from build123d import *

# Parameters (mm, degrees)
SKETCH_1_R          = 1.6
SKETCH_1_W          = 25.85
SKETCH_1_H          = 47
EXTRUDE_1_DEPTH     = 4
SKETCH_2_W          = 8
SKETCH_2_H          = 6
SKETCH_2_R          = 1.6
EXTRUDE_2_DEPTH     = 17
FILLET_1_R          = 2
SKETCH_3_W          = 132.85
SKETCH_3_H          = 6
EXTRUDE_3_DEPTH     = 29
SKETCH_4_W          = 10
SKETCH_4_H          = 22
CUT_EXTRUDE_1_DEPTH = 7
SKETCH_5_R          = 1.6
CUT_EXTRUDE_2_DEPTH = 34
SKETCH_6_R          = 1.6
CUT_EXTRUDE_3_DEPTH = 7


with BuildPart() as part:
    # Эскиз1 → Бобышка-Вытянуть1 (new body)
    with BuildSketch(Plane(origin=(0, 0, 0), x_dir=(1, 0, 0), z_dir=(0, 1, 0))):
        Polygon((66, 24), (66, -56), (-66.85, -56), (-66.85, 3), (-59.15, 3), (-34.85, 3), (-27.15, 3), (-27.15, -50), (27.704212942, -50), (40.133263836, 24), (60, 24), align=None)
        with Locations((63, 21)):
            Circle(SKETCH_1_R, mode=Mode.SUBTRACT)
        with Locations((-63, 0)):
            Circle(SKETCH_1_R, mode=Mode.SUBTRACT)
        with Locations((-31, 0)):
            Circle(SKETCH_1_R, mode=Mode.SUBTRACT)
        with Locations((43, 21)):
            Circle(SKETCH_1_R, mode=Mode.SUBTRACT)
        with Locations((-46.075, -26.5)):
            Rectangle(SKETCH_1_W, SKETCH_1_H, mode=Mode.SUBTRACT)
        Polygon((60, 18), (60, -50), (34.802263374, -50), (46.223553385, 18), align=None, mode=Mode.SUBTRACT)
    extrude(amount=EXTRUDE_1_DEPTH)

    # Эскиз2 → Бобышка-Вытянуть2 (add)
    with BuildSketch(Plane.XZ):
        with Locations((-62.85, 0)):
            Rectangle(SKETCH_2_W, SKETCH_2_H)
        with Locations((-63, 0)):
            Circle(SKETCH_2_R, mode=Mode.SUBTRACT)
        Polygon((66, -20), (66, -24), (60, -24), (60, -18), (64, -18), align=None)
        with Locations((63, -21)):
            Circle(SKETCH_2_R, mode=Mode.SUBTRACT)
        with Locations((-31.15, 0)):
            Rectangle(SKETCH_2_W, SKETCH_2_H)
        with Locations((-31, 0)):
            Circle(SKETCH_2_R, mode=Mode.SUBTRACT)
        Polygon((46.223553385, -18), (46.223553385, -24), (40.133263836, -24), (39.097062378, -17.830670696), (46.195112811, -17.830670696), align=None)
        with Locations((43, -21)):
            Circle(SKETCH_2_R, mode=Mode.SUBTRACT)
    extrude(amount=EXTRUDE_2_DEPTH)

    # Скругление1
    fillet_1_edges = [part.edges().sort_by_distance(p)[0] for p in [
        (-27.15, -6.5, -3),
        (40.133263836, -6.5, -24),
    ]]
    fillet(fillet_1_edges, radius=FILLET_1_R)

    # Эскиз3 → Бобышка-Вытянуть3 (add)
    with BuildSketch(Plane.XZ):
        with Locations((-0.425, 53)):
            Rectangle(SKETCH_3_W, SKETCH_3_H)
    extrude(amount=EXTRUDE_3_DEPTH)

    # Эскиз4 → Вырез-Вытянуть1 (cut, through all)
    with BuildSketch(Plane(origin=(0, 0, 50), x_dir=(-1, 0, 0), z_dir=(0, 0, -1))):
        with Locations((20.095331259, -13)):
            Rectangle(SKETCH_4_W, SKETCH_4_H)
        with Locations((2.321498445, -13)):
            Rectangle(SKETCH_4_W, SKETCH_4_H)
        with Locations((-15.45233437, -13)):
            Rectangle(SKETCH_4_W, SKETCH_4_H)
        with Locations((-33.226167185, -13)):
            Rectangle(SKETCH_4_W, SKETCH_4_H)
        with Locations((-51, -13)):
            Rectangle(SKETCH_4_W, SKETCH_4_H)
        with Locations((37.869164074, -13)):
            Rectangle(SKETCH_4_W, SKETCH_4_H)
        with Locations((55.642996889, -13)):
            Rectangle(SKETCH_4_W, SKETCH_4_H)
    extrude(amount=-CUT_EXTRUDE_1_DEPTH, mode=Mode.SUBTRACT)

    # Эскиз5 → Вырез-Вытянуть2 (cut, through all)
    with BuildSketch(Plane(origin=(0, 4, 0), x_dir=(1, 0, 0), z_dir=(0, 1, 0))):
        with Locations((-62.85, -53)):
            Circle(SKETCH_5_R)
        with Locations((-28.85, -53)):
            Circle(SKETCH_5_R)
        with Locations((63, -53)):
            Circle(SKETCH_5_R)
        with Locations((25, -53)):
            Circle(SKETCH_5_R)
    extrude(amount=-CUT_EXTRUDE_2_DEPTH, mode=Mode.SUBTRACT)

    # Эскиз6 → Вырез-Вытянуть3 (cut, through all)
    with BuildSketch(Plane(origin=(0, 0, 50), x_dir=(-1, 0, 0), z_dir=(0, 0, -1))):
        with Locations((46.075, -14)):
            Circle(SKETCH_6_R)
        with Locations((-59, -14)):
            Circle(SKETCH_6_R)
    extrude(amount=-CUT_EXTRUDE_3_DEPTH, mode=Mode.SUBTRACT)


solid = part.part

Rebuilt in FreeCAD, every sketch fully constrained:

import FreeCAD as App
import Part
import Sketcher

V = App.Vector


def edges_at(feature, points):
    """Names of the edges that pass closest to the given points."""
    edges = feature.Shape.Edges
    near = lambda p: min(range(len(edges)), key=lambda i: edges[i].distToShape(Part.Vertex(*p))[0])
    return sorted({f"Edge{near(p) + 1}" for p in points})

doc = App.newDocument("Part")
body = doc.addObject("PartDesign::Body", "Body")

# Sketch on XZ plane
sketch1 = body.newObject("Sketcher::SketchObject", "Sketch")
sketch1.AttachmentSupport = (doc.getObject("XZ_Plane"), [""])
sketch1.MapMode = "FlatFace"
sketch1.addGeometry(Part.LineSegment(V(66, 56, 0), V(66, -24, 0)), False)
sketch1.addGeometry(Part.LineSegment(V(66, -24, 0), V(40.1, -24, 0)), False)
sketch1.addGeometry(Part.LineSegment(V(40.1, -24, 0), V(27.7, 50, 0)), False)
sketch1.addGeometry(Part.LineSegment(V(27.7, 50, 0), V(-27.1, 50, 0)), False)
sketch1.addGeometry(Part.LineSegment(V(-27.1, 50, 0), V(-27.1, -3, 0)), False)
sketch1.addGeometry(Part.LineSegment(V(-27.1, -3, 0), V(-66.8, -3, 0)), False)
sketch1.addGeometry(Part.LineSegment(V(-66.8, -3, 0), V(-66.8, 56, 0)), False)
sketch1.addGeometry(Part.LineSegment(V(-66.8, 56, 0), V(66, 56, 0)), False)
sketch1.addGeometry(Part.LineSegment(V(60, -18, 0), V(60, 50, 0)), False)
sketch1.addGeometry(Part.LineSegment(V(60, 50, 0), V(34.8, 50, 0)), False)
sketch1.addGeometry(Part.LineSegment(V(34.8, 50, 0), V(46.2, -18, 0)), False)
sketch1.addGeometry(Part.LineSegment(V(46.2, -18, 0), V(60, -18, 0)), False)
sketch1.addGeometry(Part.LineSegment(V(-59, 50, 0), V(-59, 3, 0)), False)
sketch1.addGeometry(Part.LineSegment(V(-59, 3, 0), V(-33.1, 3, 0)), False)
sketch1.addGeometry(Part.LineSegment(V(-33.1, 3, 0), V(-33.1, 50, 0)), False)
sketch1.addGeometry(Part.LineSegment(V(-33.1, 50, 0), V(-59, 50, 0)), False)
sketch1.addGeometry(Part.Circle(V(63, -21, 0), V(0, 0, 1), 1.6), False)
sketch1.addGeometry(Part.Circle(V(43, -21, 0), V(0, 0, 1), 1.6), False)
sketch1.addGeometry(Part.Circle(V(-31, 0, 0), V(0, 0, 1), 1.6), False)
sketch1.addGeometry(Part.Circle(V(-63, 0, 0), V(0, 0, 1), 1.6), False)
sketch1.addConstraint(Sketcher.Constraint("Coincident", 0, 2, 1, 1))
sketch1.addConstraint(Sketcher.Constraint("Coincident", 1, 2, 2, 1))
sketch1.addConstraint(Sketcher.Constraint("Coincident", 2, 2, 3, 1))
sketch1.addConstraint(Sketcher.Constraint("Coincident", 3, 2, 4, 1))
sketch1.addConstraint(Sketcher.Constraint("Coincident", 4, 2, 5, 1))
sketch1.addConstraint(Sketcher.Constraint("Coincident", 5, 2, 6, 1))
sketch1.addConstraint(Sketcher.Constraint("Coincident", 6, 2, 7, 1))
sketch1.addConstraint(Sketcher.Constraint("Coincident", 7, 2, 0, 1))
sketch1.addConstraint(Sketcher.Constraint("Coincident", 8, 2, 9, 1))
sketch1.addConstraint(Sketcher.Constraint("Coincident", 9, 2, 10, 1))
sketch1.addConstraint(Sketcher.Constraint("Coincident", 10, 2, 11, 1))
sketch1.addConstraint(Sketcher.Constraint("Coincident", 11, 2, 8, 1))
sketch1.addConstraint(Sketcher.Constraint("Coincident", 12, 2, 13, 1))
sketch1.addConstraint(Sketcher.Constraint("Coincident", 13, 2, 14, 1))
sketch1.addConstraint(Sketcher.Constraint("Coincident", 14, 2, 15, 1))
sketch1.addConstraint(Sketcher.Constraint("Coincident", 15, 2, 12, 1))
sketch1.addConstraint(Sketcher.Constraint("Vertical", 0))
sketch1.addConstraint(Sketcher.Constraint("Horizontal", 1))
sketch1.addConstraint(Sketcher.Constraint("Horizontal", 3))
sketch1.addConstraint(Sketcher.Constraint("Vertical", 4))
sketch1.addConstraint(Sketcher.Constraint("Horizontal", 5))
sketch1.addConstraint(Sketcher.Constraint("Vertical", 6))
sketch1.addConstraint(Sketcher.Constraint("Horizontal", 7))
sketch1.addConstraint(Sketcher.Constraint("Vertical", 8))
sketch1.addConstraint(Sketcher.Constraint("Horizontal", 9))
sketch1.addConstraint(Sketcher.Constraint("Horizontal", 11))
sketch1.addConstraint(Sketcher.Constraint("Vertical", 12))
sketch1.addConstraint(Sketcher.Constraint("Horizontal", 13))
sketch1.addConstraint(Sketcher.Constraint("Vertical", 14))
sketch1.addConstraint(Sketcher.Constraint("Horizontal", 15))
sketch1.addConstraint(Sketcher.Constraint("Equal", 16, 17))
sketch1.addConstraint(Sketcher.Constraint("Equal", 17, 18))
sketch1.addConstraint(Sketcher.Constraint("Equal", 18, 19))
sketch1.addConstraint(Sketcher.Constraint("PointOnObject", 18, 3, -1))
sketch1.addConstraint(Sketcher.Constraint("PointOnObject", 19, 3, -1))
sketch1.addConstraint(Sketcher.Constraint("Parallel", 2, 10))
sketch1.addConstraint(Sketcher.Constraint("Horizontal", 16, 3, 17, 3))
sketch1.addConstraint(Sketcher.Constraint("Horizontal", 3, 2, 8, 2))
sketch1.addConstraint(Sketcher.Constraint("Horizontal", 9, 2, 14, 2))
sketch1.addConstraint(Sketcher.Constraint("Diameter", 16, 3.2))
sketch1.addConstraint(Sketcher.Constraint("DistanceY", 0, 2, 0, 1, 80.0))
sketch1.addConstraint(Sketcher.Constraint("DistanceY", 4, 2, 4, 1, 53.0))
sketch1.addConstraint(Sketcher.Constraint("DistanceY", 6, 1, 6, 2, 59.0))
sketch1.addConstraint(Sketcher.Constraint("DistanceY", 8, 1, 8, 2, 68.0))
sketch1.addConstraint(Sketcher.Constraint("DistanceY", 12, 2, 12, 1, 47.0))
sketch1.addConstraint(Sketcher.Constraint("DistanceX", 5, 2, 5, 1, 39.7))
sketch1.addConstraint(Sketcher.Constraint("DistanceX", -1, 1, 16, 3, 63.0))
sketch1.addConstraint(Sketcher.Constraint("DistanceY", 16, 3, -1, 1, 21.0))
sketch1.addConstraint(Sketcher.Constraint("DistanceX", -1, 1, 17, 3, 43.0))
sketch1.addConstraint(Sketcher.Constraint("DistanceX", 18, 3, -1, 1, 31.0))
sketch1.addConstraint(Sketcher.Constraint("DistanceX", 19, 3, -1, 1, 63.0))
sketch1.addConstraint(Sketcher.Constraint("DistanceX", -1, 1, 0, 2, 66.0))
sketch1.addConstraint(Sketcher.Constraint("DistanceY", 0, 2, -1, 1, 24.0))
sketch1.addConstraint(Sketcher.Constraint("DistanceX", -1, 1, 8, 2, 60.0))
sketch1.addConstraint(Sketcher.Constraint("DistanceX", 12, 2, -1, 1, 59.0))
sketch1.addConstraint(Sketcher.Constraint("DistanceX", 13, 2, 4, 2, 6.0))
sketch1.addConstraint(Sketcher.Constraint("DistanceX", 7, 1, 7, 2, 132.85))
sketch1.addConstraint(Sketcher.Constraint("Distance", 10, 68.95249))
sketch1.addConstraint(Sketcher.Constraint("DistanceX", 1, 2, 1, 1, 25.866736))
sketch1.addConstraint(Sketcher.Constraint("DistanceX", 9, 2, 9, 1, 25.197737))
pad1 = body.newObject("PartDesign::Pad", "Pad")
pad1.Profile = sketch1
pad1.Length = 4
pad1.Reversed = True

# Sketch on XZ plane
sketch2 = body.newObject("Sketcher::SketchObject", "Sketch001")
sketch2.AttachmentSupport = (doc.getObject("XZ_Plane"), [""])
sketch2.MapMode = "FlatFace"
sketch2.addGeometry(Part.LineSegment(V(-66.85, 3, 0), V(-66.85, -3, 0)), False)
sketch2.addGeometry(Part.LineSegment(V(-66.85, -3, 0), V(-58.85, -3, 0)), False)
sketch2.addGeometry(Part.LineSegment(V(-58.85, -3, 0), V(-58.85, 3, 0)), False)
sketch2.addGeometry(Part.LineSegment(V(-58.85, 3, 0), V(-66.85, 3, 0)), False)
sketch2.addGeometry(Part.Circle(V(-63, 0, 0), V(0, 0, 1), 1.6), False)
sketch2.addGeometry(Part.LineSegment(V(66, -24, 0), V(66, -20, 0)), False)
sketch2.addGeometry(Part.LineSegment(V(66, -20, 0), V(64, -18, 0)), False)
sketch2.addGeometry(Part.LineSegment(V(64, -18, 0), V(60, -18, 0)), False)
sketch2.addGeometry(Part.LineSegment(V(60, -18, 0), V(60, -24, 0)), False)
sketch2.addGeometry(Part.LineSegment(V(60, -24, 0), V(66, -24, 0)), False)
sketch2.addGeometry(Part.Circle(V(63, -21, 0), V(0, 0, 1), 1.6), False)
sketch2.addGeometry(Part.LineSegment(V(-35.15, 3, 0), V(-35.15, -3, 0)), False)
sketch2.addGeometry(Part.LineSegment(V(-35.15, -3, 0), V(-27.15, -3, 0)), False)
sketch2.addGeometry(Part.LineSegment(V(-27.15, -3, 0), V(-27.15, 3, 0)), False)
sketch2.addGeometry(Part.LineSegment(V(-27.15, 3, 0), V(-35.15, 3, 0)), False)
sketch2.addGeometry(Part.Circle(V(-31, 0, 0), V(0, 0, 1), 1.6), False)
sketch2.addGeometry(Part.LineSegment(V(46.22, -24, 0), V(46.22, -18, 0)), False)
sketch2.addGeometry(Part.LineSegment(V(46.22, -18, 0), V(46.2, -17.83, 0)), False)
sketch2.addGeometry(Part.LineSegment(V(46.2, -17.83, 0), V(39.1, -17.83, 0)), False)
sketch2.addGeometry(Part.LineSegment(V(39.1, -17.83, 0), V(40.13, -24, 0)), False)
sketch2.addGeometry(Part.LineSegment(V(40.13, -24, 0), V(46.22, -24, 0)), False)
sketch2.addGeometry(Part.Circle(V(43, -21, 0), V(0, 0, 1), 1.6), False)
sketch2.addConstraint(Sketcher.Constraint("Coincident", 0, 2, 1, 1))
sketch2.addConstraint(Sketcher.Constraint("Coincident", 1, 2, 2, 1))
sketch2.addConstraint(Sketcher.Constraint("Coincident", 2, 2, 3, 1))
sketch2.addConstraint(Sketcher.Constraint("Coincident", 3, 2, 0, 1))
sketch2.addConstraint(Sketcher.Constraint("Coincident", 5, 2, 6, 1))
sketch2.addConstraint(Sketcher.Constraint("Coincident", 6, 2, 7, 1))
sketch2.addConstraint(Sketcher.Constraint("Coincident", 7, 2, 8, 1))
sketch2.addConstraint(Sketcher.Constraint("Coincident", 8, 2, 9, 1))
sketch2.addConstraint(Sketcher.Constraint("Coincident", 9, 2, 5, 1))
sketch2.addConstraint(Sketcher.Constraint("Coincident", 11, 2, 12, 1))
sketch2.addConstraint(Sketcher.Constraint("Coincident", 12, 2, 13, 1))
sketch2.addConstraint(Sketcher.Constraint("Coincident", 13, 2, 14, 1))
sketch2.addConstraint(Sketcher.Constraint("Coincident", 14, 2, 11, 1))
sketch2.addConstraint(Sketcher.Constraint("Coincident", 16, 2, 17, 1))
sketch2.addConstraint(Sketcher.Constraint("Coincident", 17, 2, 18, 1))
sketch2.addConstraint(Sketcher.Constraint("Coincident", 18, 2, 19, 1))
sketch2.addConstraint(Sketcher.Constraint("Coincident", 19, 2, 20, 1))
sketch2.addConstraint(Sketcher.Constraint("Coincident", 20, 2, 16, 1))
sketch2.addConstraint(Sketcher.Constraint("Vertical", 0))
sketch2.addConstraint(Sketcher.Constraint("Horizontal", 1))
sketch2.addConstraint(Sketcher.Constraint("Vertical", 2))
sketch2.addConstraint(Sketcher.Constraint("Horizontal", 3))
sketch2.addConstraint(Sketcher.Constraint("Vertical", 5))
sketch2.addConstraint(Sketcher.Constraint("Horizontal", 7))
sketch2.addConstraint(Sketcher.Constraint("Vertical", 8))
sketch2.addConstraint(Sketcher.Constraint("Horizontal", 9))
sketch2.addConstraint(Sketcher.Constraint("Vertical", 11))
sketch2.addConstraint(Sketcher.Constraint("Horizontal", 12))
sketch2.addConstraint(Sketcher.Constraint("Vertical", 13))
sketch2.addConstraint(Sketcher.Constraint("Horizontal", 14))
sketch2.addConstraint(Sketcher.Constraint("Vertical", 16))
sketch2.addConstraint(Sketcher.Constraint("Horizontal", 18))
sketch2.addConstraint(Sketcher.Constraint("Horizontal", 20))
sketch2.addConstraint(Sketcher.Constraint("Equal", 4, 10))
sketch2.addConstraint(Sketcher.Constraint("Equal", 10, 15))
sketch2.addConstraint(Sketcher.Constraint("Equal", 15, 21))
sketch2.addConstraint(Sketcher.Constraint("PointOnObject", 4, 3, -1))
sketch2.addConstraint(Sketcher.Constraint("PointOnObject", 15, 3, -1))
sketch2.addConstraint(Sketcher.Constraint("Parallel", 17, 19))
sketch2.addConstraint(Sketcher.Constraint("Horizontal", 10, 3, 21, 3))
sketch2.addConstraint(Sketcher.Constraint("Horizontal", 1, 2, 11, 2))
sketch2.addConstraint(Sketcher.Constraint("Horizontal", 3, 2, 13, 2))
sketch2.addConstraint(Sketcher.Constraint("Horizontal", 7, 2, 16, 2))
sketch2.addConstraint(Sketcher.Constraint("Horizontal", 9, 2, 19, 2))
sketch2.addConstraint(Sketcher.Constraint("Equal", 3, 12))
sketch2.addConstraint(Sketcher.Constraint("Equal", 9, 0))
sketch2.addConstraint(Sketcher.Constraint("Equal", 7, 5))
sketch2.addConstraint(Sketcher.Constraint("Equal", 2, 8))
sketch2.addConstraint(Sketcher.Constraint("Diameter", 4, 3.2))
sketch2.addConstraint(Sketcher.Constraint("DistanceX", 1, 1, 1, 2, 8.0))
sketch2.addConstraint(Sketcher.Constraint("DistanceX", 7, 2, 7, 1, 4.0))
sketch2.addConstraint(Sketcher.Constraint("DistanceX", 9, 1, 9, 2, 6.0))
sketch2.addConstraint(Sketcher.Constraint("DistanceX", 4, 3, -1, 1, 63.0))
sketch2.addConstraint(Sketcher.Constraint("DistanceX", -1, 1, 10, 3, 63.0))
sketch2.addConstraint(Sketcher.Constraint("DistanceY", 10, 3, -1, 1, 21.0))
sketch2.addConstraint(Sketcher.Constraint("DistanceX", 15, 3, -1, 1, 31.0))
sketch2.addConstraint(Sketcher.Constraint("DistanceX", -1, 1, 21, 3, 43.0))
sketch2.addConstraint(Sketcher.Constraint("DistanceY", 0, 2, -1, 1, 3.0))
sketch2.addConstraint(Sketcher.Constraint("DistanceX", -1, 1, 5, 2, 66.0))
sketch2.addConstraint(Sketcher.Constraint("DistanceY", 5, 2, -1, 1, 20.0))
sketch2.addConstraint(Sketcher.Constraint("DistanceX", 1, 2, 11, 2, 23.7))
sketch2.addConstraint(Sketcher.Constraint("DistanceX", 0, 2, -1, 1, 66.85))
sketch2.addConstraint(Sketcher.Constraint("Distance", 17, 0.171701))
sketch2.addConstraint(Sketcher.Constraint("DistanceX", 18, 2, 18, 1, 7.09805))
sketch2.addConstraint(Sketcher.Constraint("DistanceX", 20, 1, 20, 2, 6.09029))
sketch2.addConstraint(Sketcher.Constraint("DistanceX", -1, 1, 16, 2, 46.223553))
pad2 = body.newObject("PartDesign::Pad", "Pad001")
pad2.Profile = sketch2
pad2.Length = 17
doc.recompute()

fillet = body.newObject("PartDesign::Fillet", "Fillet")
fillet.Base = (pad2, edges_at(pad2, [(-27.15, -6.5, -3), (40.133, -8.5, -24)]))
fillet.Radius = 2

# Sketch on XZ plane
sketch3 = body.newObject("Sketcher::SketchObject", "Sketch002")
sketch3.AttachmentSupport = (doc.getObject("XZ_Plane"), [""])
sketch3.MapMode = "FlatFace"
sketch3.addGeometry(Part.LineSegment(V(-67, 56, 0), V(-67, 50, 0)), False)
sketch3.addGeometry(Part.LineSegment(V(-67, 50, 0), V(66, 50, 0)), False)
sketch3.addGeometry(Part.LineSegment(V(66, 50, 0), V(66, 56, 0)), False)
sketch3.addGeometry(Part.LineSegment(V(66, 56, 0), V(-67, 56, 0)), False)
sketch3.addConstraint(Sketcher.Constraint("Coincident", 0, 2, 1, 1))
sketch3.addConstraint(Sketcher.Constraint("Coincident", 1, 2, 2, 1))
sketch3.addConstraint(Sketcher.Constraint("Coincident", 2, 2, 3, 1))
sketch3.addConstraint(Sketcher.Constraint("Coincident", 3, 2, 0, 1))
sketch3.addConstraint(Sketcher.Constraint("Vertical", 0))
sketch3.addConstraint(Sketcher.Constraint("Horizontal", 1))
sketch3.addConstraint(Sketcher.Constraint("Vertical", 2))
sketch3.addConstraint(Sketcher.Constraint("Horizontal", 3))
sketch3.addConstraint(Sketcher.Constraint("DistanceY", 0, 2, 0, 1, 6.0))
sketch3.addConstraint(Sketcher.Constraint("DistanceY", -1, 1, 0, 2, 50.0))
sketch3.addConstraint(Sketcher.Constraint("DistanceX", -1, 1, 1, 2, 66.0))
sketch3.addConstraint(Sketcher.Constraint("DistanceX", 1, 1, 1, 2, 132.85))
pad3 = body.newObject("PartDesign::Pad", "Pad002")
pad3.Profile = sketch3
pad3.Length = 29

# Sketch on XY plane
sketch4 = body.newObject("Sketcher::SketchObject", "Sketch003")
sketch4.AttachmentSupport = (doc.getObject("XY_Plane"), [""])
sketch4.MapMode = "FlatFace"
sketch4.AttachmentOffset = App.Placement(V(0, 0, 50), App.Rotation())
sketch4.addGeometry(Part.LineSegment(V(-15, -2, 0), V(-15, -24, 0)), False)
sketch4.addGeometry(Part.LineSegment(V(-15, -24, 0), V(-25, -24, 0)), False)
sketch4.addGeometry(Part.LineSegment(V(-25, -24, 0), V(-25, -2, 0)), False)
sketch4.addGeometry(Part.LineSegment(V(-25, -2, 0), V(-15, -2, 0)), False)
sketch4.addGeometry(Part.LineSegment(V(3, -2, 0), V(3, -24, 0)), False)
sketch4.addGeometry(Part.LineSegment(V(3, -24, 0), V(-7, -24, 0)), False)
sketch4.addGeometry(Part.LineSegment(V(-7, -24, 0), V(-7, -2, 0)), False)
sketch4.addGeometry(Part.LineSegment(V(-7, -2, 0), V(3, -2, 0)), False)
sketch4.addGeometry(Part.LineSegment(V(20, -2, 0), V(20, -24, 0)), False)
sketch4.addGeometry(Part.LineSegment(V(20, -24, 0), V(10, -24, 0)), False)
sketch4.addGeometry(Part.LineSegment(V(10, -24, 0), V(10, -2, 0)), False)
sketch4.addGeometry(Part.LineSegment(V(10, -2, 0), V(20, -2, 0)), False)
sketch4.addGeometry(Part.LineSegment(V(38, -2, 0), V(38, -24, 0)), False)
sketch4.addGeometry(Part.LineSegment(V(38, -24, 0), V(28, -24, 0)), False)
sketch4.addGeometry(Part.LineSegment(V(28, -24, 0), V(28, -2, 0)), False)
sketch4.addGeometry(Part.LineSegment(V(28, -2, 0), V(38, -2, 0)), False)
sketch4.addGeometry(Part.LineSegment(V(56, -2, 0), V(56, -24, 0)), False)
sketch4.addGeometry(Part.LineSegment(V(56, -24, 0), V(46, -24, 0)), False)
sketch4.addGeometry(Part.LineSegment(V(46, -24, 0), V(46, -2, 0)), False)
sketch4.addGeometry(Part.LineSegment(V(46, -2, 0), V(56, -2, 0)), False)
sketch4.addGeometry(Part.LineSegment(V(-33, -2, 0), V(-33, -24, 0)), False)
sketch4.addGeometry(Part.LineSegment(V(-33, -24, 0), V(-43, -24, 0)), False)
sketch4.addGeometry(Part.LineSegment(V(-43, -24, 0), V(-43, -2, 0)), False)
sketch4.addGeometry(Part.LineSegment(V(-43, -2, 0), V(-33, -2, 0)), False)
sketch4.addGeometry(Part.LineSegment(V(-51, -2, 0), V(-51, -24, 0)), False)
sketch4.addGeometry(Part.LineSegment(V(-51, -24, 0), V(-61, -24, 0)), False)
sketch4.addGeometry(Part.LineSegment(V(-61, -24, 0), V(-61, -2, 0)), False)
sketch4.addGeometry(Part.LineSegment(V(-61, -2, 0), V(-51, -2, 0)), False)
sketch4.addConstraint(Sketcher.Constraint("Coincident", 0, 2, 1, 1))
sketch4.addConstraint(Sketcher.Constraint("Coincident", 1, 2, 2, 1))
sketch4.addConstraint(Sketcher.Constraint("Coincident", 2, 2, 3, 1))
sketch4.addConstraint(Sketcher.Constraint("Coincident", 3, 2, 0, 1))
sketch4.addConstraint(Sketcher.Constraint("Coincident", 4, 2, 5, 1))
sketch4.addConstraint(Sketcher.Constraint("Coincident", 5, 2, 6, 1))
sketch4.addConstraint(Sketcher.Constraint("Coincident", 6, 2, 7, 1))
sketch4.addConstraint(Sketcher.Constraint("Coincident", 7, 2, 4, 1))
sketch4.addConstraint(Sketcher.Constraint("Coincident", 8, 2, 9, 1))
sketch4.addConstraint(Sketcher.Constraint("Coincident", 9, 2, 10, 1))
sketch4.addConstraint(Sketcher.Constraint("Coincident", 10, 2, 11, 1))
sketch4.addConstraint(Sketcher.Constraint("Coincident", 11, 2, 8, 1))
sketch4.addConstraint(Sketcher.Constraint("Coincident", 12, 2, 13, 1))
sketch4.addConstraint(Sketcher.Constraint("Coincident", 13, 2, 14, 1))
sketch4.addConstraint(Sketcher.Constraint("Coincident", 14, 2, 15, 1))
sketch4.addConstraint(Sketcher.Constraint("Coincident", 15, 2, 12, 1))
sketch4.addConstraint(Sketcher.Constraint("Coincident", 16, 2, 17, 1))
sketch4.addConstraint(Sketcher.Constraint("Coincident", 17, 2, 18, 1))
sketch4.addConstraint(Sketcher.Constraint("Coincident", 18, 2, 19, 1))
sketch4.addConstraint(Sketcher.Constraint("Coincident", 19, 2, 16, 1))
sketch4.addConstraint(Sketcher.Constraint("Coincident", 20, 2, 21, 1))
sketch4.addConstraint(Sketcher.Constraint("Coincident", 21, 2, 22, 1))
sketch4.addConstraint(Sketcher.Constraint("Coincident", 22, 2, 23, 1))
sketch4.addConstraint(Sketcher.Constraint("Coincident", 23, 2, 20, 1))
sketch4.addConstraint(Sketcher.Constraint("Coincident", 24, 2, 25, 1))
sketch4.addConstraint(Sketcher.Constraint("Coincident", 25, 2, 26, 1))
sketch4.addConstraint(Sketcher.Constraint("Coincident", 26, 2, 27, 1))
sketch4.addConstraint(Sketcher.Constraint("Coincident", 27, 2, 24, 1))
sketch4.addConstraint(Sketcher.Constraint("Vertical", 0))
sketch4.addConstraint(Sketcher.Constraint("Horizontal", 1))
sketch4.addConstraint(Sketcher.Constraint("Vertical", 2))
sketch4.addConstraint(Sketcher.Constraint("Horizontal", 3))
sketch4.addConstraint(Sketcher.Constraint("Vertical", 4))
sketch4.addConstraint(Sketcher.Constraint("Horizontal", 5))
sketch4.addConstraint(Sketcher.Constraint("Vertical", 6))
sketch4.addConstraint(Sketcher.Constraint("Horizontal", 7))
sketch4.addConstraint(Sketcher.Constraint("Vertical", 8))
sketch4.addConstraint(Sketcher.Constraint("Horizontal", 9))
sketch4.addConstraint(Sketcher.Constraint("Vertical", 10))
sketch4.addConstraint(Sketcher.Constraint("Horizontal", 11))
sketch4.addConstraint(Sketcher.Constraint("Vertical", 12))
sketch4.addConstraint(Sketcher.Constraint("Horizontal", 13))
sketch4.addConstraint(Sketcher.Constraint("Vertical", 14))
sketch4.addConstraint(Sketcher.Constraint("Horizontal", 15))
sketch4.addConstraint(Sketcher.Constraint("Vertical", 16))
sketch4.addConstraint(Sketcher.Constraint("Horizontal", 17))
sketch4.addConstraint(Sketcher.Constraint("Vertical", 18))
sketch4.addConstraint(Sketcher.Constraint("Horizontal", 19))
sketch4.addConstraint(Sketcher.Constraint("Vertical", 20))
sketch4.addConstraint(Sketcher.Constraint("Horizontal", 21))
sketch4.addConstraint(Sketcher.Constraint("Vertical", 22))
sketch4.addConstraint(Sketcher.Constraint("Horizontal", 23))
sketch4.addConstraint(Sketcher.Constraint("Vertical", 24))
sketch4.addConstraint(Sketcher.Constraint("Horizontal", 25))
sketch4.addConstraint(Sketcher.Constraint("Vertical", 26))
sketch4.addConstraint(Sketcher.Constraint("Horizontal", 27))
sketch4.addConstraint(Sketcher.Constraint("Horizontal", 1, 2, 4, 2))
sketch4.addConstraint(Sketcher.Constraint("Horizontal", 3, 2, 6, 2))
sketch4.addConstraint(Sketcher.Constraint("Horizontal", 5, 2, 8, 2))
sketch4.addConstraint(Sketcher.Constraint("Horizontal", 7, 2, 10, 2))
sketch4.addConstraint(Sketcher.Constraint("Horizontal", 9, 2, 12, 2))
sketch4.addConstraint(Sketcher.Constraint("Horizontal", 11, 2, 14, 2))
sketch4.addConstraint(Sketcher.Constraint("Horizontal", 13, 2, 16, 2))
sketch4.addConstraint(Sketcher.Constraint("Horizontal", 15, 2, 18, 2))
sketch4.addConstraint(Sketcher.Constraint("Horizontal", 17, 2, 20, 2))
sketch4.addConstraint(Sketcher.Constraint("Horizontal", 19, 2, 22, 2))
sketch4.addConstraint(Sketcher.Constraint("Horizontal", 21, 2, 24, 2))
sketch4.addConstraint(Sketcher.Constraint("Horizontal", 23, 2, 26, 2))
sketch4.addConstraint(Sketcher.Constraint("Equal", 3, 5))
sketch4.addConstraint(Sketcher.Constraint("Equal", 7, 9))
sketch4.addConstraint(Sketcher.Constraint("Equal", 11, 13))
sketch4.addConstraint(Sketcher.Constraint("Equal", 15, 17))
sketch4.addConstraint(Sketcher.Constraint("Equal", 19, 21))
sketch4.addConstraint(Sketcher.Constraint("Equal", 23, 25))
sketch4.addConstraint(Sketcher.Constraint("DistanceX", 1, 2, 1, 1, 10.0))
sketch4.addConstraint(Sketcher.Constraint("DistanceY", 0, 2, 0, 1, 22.0))
sketch4.addConstraint(Sketcher.Constraint("DistanceY", 0, 2, -1, 1, 24.0))
sketch4.addConstraint(Sketcher.Constraint("DistanceX", -1, 1, 16, 2, 56.0))
sketch4.addConstraint(Sketcher.Constraint("DistanceX", -1, 1, 4, 2, 2.678502))
sketch4.addConstraint(Sketcher.Constraint("DistanceX", 0, 2, -1, 1, 15.095331))
sketch4.addConstraint(Sketcher.Constraint("DistanceX", -1, 1, 8, 2, 20.452334))
sketch4.addConstraint(Sketcher.Constraint("DistanceX", -1, 1, 12, 2, 38.226167))
sketch4.addConstraint(Sketcher.Constraint("DistanceX", 20, 2, -1, 1, 32.869164))
sketch4.addConstraint(Sketcher.Constraint("DistanceX", 24, 2, -1, 1, 50.642997))
pocket1 = body.newObject("PartDesign::Pocket", "Pocket")
pocket1.Profile = sketch4
pocket1.Type = "ThroughAll"
pocket1.Reversed = True

# Sketch on XZ plane
sketch5 = body.newObject("Sketcher::SketchObject", "Sketch004")
sketch5.AttachmentSupport = (doc.getObject("XZ_Plane"), [""])
sketch5.MapMode = "FlatFace"
sketch5.AttachmentOffset = App.Placement(V(0, 0, -4), App.Rotation())
sketch5.addGeometry(Part.Circle(V(-62.9, 53, 0), V(0, 0, 1), 1.6), False)
sketch5.addGeometry(Part.Circle(V(-28.9, 53, 0), V(0, 0, 1), 1.6), False)
sketch5.addGeometry(Part.Circle(V(63, 53, 0), V(0, 0, 1), 1.6), False)
sketch5.addGeometry(Part.Circle(V(25, 53, 0), V(0, 0, 1), 1.6), False)
sketch5.addConstraint(Sketcher.Constraint("Equal", 0, 1))
sketch5.addConstraint(Sketcher.Constraint("Equal", 1, 2))
sketch5.addConstraint(Sketcher.Constraint("Equal", 2, 3))
sketch5.addConstraint(Sketcher.Constraint("Horizontal", 0, 3, 1, 3))
sketch5.addConstraint(Sketcher.Constraint("Horizontal", 1, 3, 2, 3))
sketch5.addConstraint(Sketcher.Constraint("Horizontal", 2, 3, 3, 3))
sketch5.addConstraint(Sketcher.Constraint("Diameter", 0, 3.2))
sketch5.addConstraint(Sketcher.Constraint("DistanceY", -1, 1, 0, 3, 53.0))
sketch5.addConstraint(Sketcher.Constraint("DistanceX", -1, 1, 2, 3, 63.0))
sketch5.addConstraint(Sketcher.Constraint("DistanceX", -1, 1, 3, 3, 25.0))
sketch5.addConstraint(Sketcher.Constraint("DistanceX", 0, 3, 1, 3, 34.0))
sketch5.addConstraint(Sketcher.Constraint("DistanceX", 0, 3, -1, 1, 62.85))
pocket2 = body.newObject("PartDesign::Pocket", "Pocket001")
pocket2.Profile = sketch5
pocket2.Type = "ThroughAll"
pocket2.Reversed = True

# Sketch on XY plane
sketch6 = body.newObject("Sketcher::SketchObject", "Sketch005")
sketch6.AttachmentSupport = (doc.getObject("XY_Plane"), [""])
sketch6.MapMode = "FlatFace"
sketch6.AttachmentOffset = App.Placement(V(0, 0, 50), App.Rotation())
sketch6.addGeometry(Part.Circle(V(-46.1, -14, 0), V(0, 0, 1), 1.6), False)
sketch6.addGeometry(Part.Circle(V(59, -14, 0), V(0, 0, 1), 1.6), False)
sketch6.addConstraint(Sketcher.Constraint("Equal", 0, 1))
sketch6.addConstraint(Sketcher.Constraint("Horizontal", 0, 3, 1, 3))
sketch6.addConstraint(Sketcher.Constraint("Diameter", 0, 3.2))
sketch6.addConstraint(Sketcher.Constraint("DistanceY", 0, 3, -1, 1, 14.0))
sketch6.addConstraint(Sketcher.Constraint("DistanceX", -1, 1, 1, 3, 59.0))
sketch6.addConstraint(Sketcher.Constraint("DistanceX", 0, 3, -1, 1, 46.075))
pocket3 = body.newObject("PartDesign::Pocket", "Pocket002")
pocket3.Profile = sketch6
pocket3.Type = "ThroughAll"
pocket3.Reversed = True

doc.recompute()
